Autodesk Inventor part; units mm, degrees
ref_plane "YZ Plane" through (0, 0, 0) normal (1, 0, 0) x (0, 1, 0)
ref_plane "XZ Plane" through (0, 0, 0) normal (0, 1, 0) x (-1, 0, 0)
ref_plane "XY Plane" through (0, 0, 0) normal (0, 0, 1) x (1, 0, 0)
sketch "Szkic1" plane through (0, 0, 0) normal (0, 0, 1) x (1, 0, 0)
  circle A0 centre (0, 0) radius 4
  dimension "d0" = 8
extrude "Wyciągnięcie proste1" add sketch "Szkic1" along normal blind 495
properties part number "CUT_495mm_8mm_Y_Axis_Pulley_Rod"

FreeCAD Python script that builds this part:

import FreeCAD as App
import Part
import Sketcher

V = App.Vector
Q = App.Units.Quantity

doc = App.newDocument("Part")
params = doc.addObject("Spreadsheet::Sheet", "Params")
for row, (alias, value) in enumerate([
    ("sketch1_diameter", "8 mm"),
    ("pad1_length", "495 mm"),
], start=1):
    params.set(f"A{row}", alias)
    params.set(f"B{row}", "=" + value)
    params.setAlias(f"B{row}", alias)

body = doc.addObject("PartDesign::Body", "Body")

# Sketch on XY plane
sketch1 = body.newObject("Sketcher::SketchObject", "Sketch")
sketch1.AttachmentSupport = (doc.getObject("XY_Plane"), [""])
sketch1.MapMode = "FlatFace"
sketch1.addGeometry(Part.Circle(V(0, 0, 0), V(0, 0, 1), 4), False)
sketch1.addConstraint([
    Sketcher.Constraint("Coincident", 0, 3, -1, 1),
    Sketcher.Constraint("Diameter", 0, Q("8 mm")),
])
sketch1.setExpression("Constraints[1]", "Params.sketch1_diameter")
pad1 = body.newObject("PartDesign::Pad", "Pad")
pad1.Profile = sketch1
pad1.setExpression("Length", "Params.pad1_length")

doc.recompute()
